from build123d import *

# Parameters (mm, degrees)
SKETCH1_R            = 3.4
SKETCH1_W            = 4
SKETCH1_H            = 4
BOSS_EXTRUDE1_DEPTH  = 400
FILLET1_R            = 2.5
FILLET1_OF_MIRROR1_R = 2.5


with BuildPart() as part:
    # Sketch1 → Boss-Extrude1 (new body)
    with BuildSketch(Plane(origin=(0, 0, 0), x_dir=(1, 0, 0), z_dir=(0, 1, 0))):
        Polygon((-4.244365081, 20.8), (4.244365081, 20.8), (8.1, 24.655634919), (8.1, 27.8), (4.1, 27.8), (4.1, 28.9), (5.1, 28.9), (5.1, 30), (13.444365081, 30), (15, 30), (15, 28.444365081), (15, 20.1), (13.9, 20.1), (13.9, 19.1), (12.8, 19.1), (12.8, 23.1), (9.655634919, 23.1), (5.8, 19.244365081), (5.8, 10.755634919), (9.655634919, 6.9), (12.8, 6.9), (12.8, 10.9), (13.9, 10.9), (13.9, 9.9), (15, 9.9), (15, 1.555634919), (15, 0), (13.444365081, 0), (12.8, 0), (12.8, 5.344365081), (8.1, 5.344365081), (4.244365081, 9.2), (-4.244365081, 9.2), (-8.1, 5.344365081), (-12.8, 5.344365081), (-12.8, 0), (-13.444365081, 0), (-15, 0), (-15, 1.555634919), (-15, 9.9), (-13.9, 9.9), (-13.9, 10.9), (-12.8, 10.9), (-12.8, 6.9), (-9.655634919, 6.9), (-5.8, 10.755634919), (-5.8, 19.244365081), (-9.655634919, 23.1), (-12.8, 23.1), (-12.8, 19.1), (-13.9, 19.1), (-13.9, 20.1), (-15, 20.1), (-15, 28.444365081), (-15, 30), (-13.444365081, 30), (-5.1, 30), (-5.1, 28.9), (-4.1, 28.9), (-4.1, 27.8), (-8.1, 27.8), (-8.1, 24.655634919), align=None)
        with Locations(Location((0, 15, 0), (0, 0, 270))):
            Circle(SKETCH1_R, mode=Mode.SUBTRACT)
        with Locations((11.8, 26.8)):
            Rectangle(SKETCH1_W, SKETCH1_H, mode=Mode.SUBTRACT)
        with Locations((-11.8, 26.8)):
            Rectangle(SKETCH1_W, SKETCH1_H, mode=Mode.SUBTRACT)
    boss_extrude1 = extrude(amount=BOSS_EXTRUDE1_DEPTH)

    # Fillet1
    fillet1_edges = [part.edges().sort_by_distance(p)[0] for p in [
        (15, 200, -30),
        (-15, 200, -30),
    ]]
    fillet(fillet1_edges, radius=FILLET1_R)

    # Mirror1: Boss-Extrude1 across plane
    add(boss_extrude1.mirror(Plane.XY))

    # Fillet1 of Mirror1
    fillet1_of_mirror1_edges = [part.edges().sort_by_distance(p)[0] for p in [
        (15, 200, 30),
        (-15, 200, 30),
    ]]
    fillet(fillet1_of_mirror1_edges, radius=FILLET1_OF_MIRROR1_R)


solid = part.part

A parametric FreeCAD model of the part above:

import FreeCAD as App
import Part
import Sketcher

V = App.Vector


def edges_at(feature, points):
    """Names of the edges that pass closest to the given points."""
    edges = feature.Shape.Edges
    near = lambda p: min(range(len(edges)), key=lambda i: edges[i].distToShape(Part.Vertex(*p))[0])
    return sorted({f"Edge{near(p) + 1}" for p in points})

doc = App.newDocument("Part")
params = doc.addObject("Spreadsheet::Sheet", "Params")
for row, (alias, value) in enumerate([
    ("sketch1_diameter", "6.8 mm"),
    ("sketch1_width", "4 mm"),
    ("sketch1_width2", "1 mm"),
    ("sketch1_width3", "9.9 mm"),
    ("sketch1_width4", "1.1 mm"),
    ("pad1_length", "400 mm"),
    ("fillet_radius", "2.5 mm"),
    ("fillet2_radius", "2.5 mm"),
], start=1):
    params.set(f"A{row}", alias)
    params.set(f"B{row}", "=" + value)
    params.setAlias(f"B{row}", alias)

body = doc.addObject("PartDesign::Body", "Body")

sketch1 = body.newObject("Sketcher::SketchObject", "Sketch")
sketch1.AttachmentSupport = (doc.getObject("XZ_Plane"), [""])
sketch1.MapMode = "FlatFace"
sketch1.addGeometry([
    Part.LineSegment(V(4.244365, -20.8, 0), V(-4.244365, -20.8, 0)),
    Part.LineSegment(V(-4.244365, -20.8, 0), V(-8.1, -24.655635, 0)),
    Part.LineSegment(V(-8.1, -24.655635, 0), V(-8.1, -27.8, 0)),
    Part.LineSegment(V(-8.1, -27.8, 0), V(-4.1, -27.8, 0)),
    Part.LineSegment(V(-4.1, -27.8, 0), V(-4.1, -28.9, 0)),
    Part.LineSegment(V(-4.1, -28.9, 0), V(-5.1, -28.9, 0)),
    Part.LineSegment(V(-5.1, -28.9, 0), V(-5.1, -30, 0)),
    Part.LineSegment(V(-5.1, -30, 0), V(-15, -30, 0)),
    Part.LineSegment(V(-15, -30, 0), V(-15, -20.1, 0)),
    Part.LineSegment(V(-15, -20.1, 0), V(-13.9, -20.1, 0)),
    Part.LineSegment(V(-13.9, -20.1, 0), V(-13.9, -19.1, 0)),
    Part.LineSegment(V(-13.9, -19.1, 0), V(-12.8, -19.1, 0)),
    Part.LineSegment(V(-12.8, -19.1, 0), V(-12.8, -23.1, 0)),
    Part.LineSegment(V(-12.8, -23.1, 0), V(-9.655635, -23.1, 0)),
    Part.LineSegment(V(-9.655635, -23.1, 0), V(-5.8, -19.244365, 0)),
    Part.LineSegment(V(-5.8, -19.244365, 0), V(-5.8, -10.755635, 0)),
    Part.LineSegment(V(-5.8, -10.755635, 0), V(-9.655635, -6.9, 0)),
    Part.LineSegment(V(-9.655635, -6.9, 0), V(-12.8, -6.9, 0)),
    Part.LineSegment(V(-12.8, -6.9, 0), V(-12.8, -10.9, 0)),
    Part.LineSegment(V(-12.8, -10.9, 0), V(-13.9, -10.9, 0)),
    Part.LineSegment(V(-13.9, -10.9, 0), V(-13.9, -9.9, 0)),
    Part.LineSegment(V(-13.9, -9.9, 0), V(-15, -9.9, 0)),
    Part.LineSegment(V(-15, -9.9, 0), V(-15, 0, 0)),
    Part.LineSegment(V(-15, 0, 0), V(-12.8, 0, 0)),
    Part.LineSegment(V(-12.8, 0, 0), V(-12.8, -5.344365, 0)),
    Part.LineSegment(V(-12.8, -5.344365, 0), V(-8.1, -5.344365, 0)),
    Part.LineSegment(V(-8.1, -5.344365, 0), V(-4.244365, -9.2, 0)),
    Part.LineSegment(V(-4.244365, -9.2, 0), V(4.244365, -9.2, 0)),
    Part.LineSegment(V(4.244365, -9.2, 0), V(8.1, -5.344365, 0)),
    Part.LineSegment(V(8.1, -5.344365, 0), V(12.8, -5.344365, 0)),
    Part.LineSegment(V(12.8, -5.344365, 0), V(12.8, 0, 0)),
    Part.LineSegment(V(12.8, 0, 0), V(15, 0, 0)),
    Part.LineSegment(V(15, 0, 0), V(15, -9.9, 0)),
    Part.LineSegment(V(15, -9.9, 0), V(13.9, -9.9, 0)),
    Part.LineSegment(V(13.9, -9.9, 0), V(13.9, -10.9, 0)),
    Part.LineSegment(V(13.9, -10.9, 0), V(12.8, -10.9, 0)),
    Part.LineSegment(V(12.8, -10.9, 0), V(12.8, -6.9, 0)),
    Part.LineSegment(V(12.8, -6.9, 0), V(9.655635, -6.9, 0)),
    Part.LineSegment(V(9.655635, -6.9, 0), V(5.8, -10.755635, 0)),
    Part.LineSegment(V(5.8, -10.755635, 0), V(5.8, -19.244365, 0)),
    Part.LineSegment(V(5.8, -19.244365, 0), V(9.655635, -23.1, 0)),
    Part.LineSegment(V(9.655635, -23.1, 0), V(12.8, -23.1, 0)),
    Part.LineSegment(V(12.8, -23.1, 0), V(12.8, -19.1, 0)),
    Part.LineSegment(V(12.8, -19.1, 0), V(13.9, -19.1, 0)),
    Part.LineSegment(V(13.9, -19.1, 0), V(13.9, -20.1, 0)),
    Part.LineSegment(V(13.9, -20.1, 0), V(15, -20.1, 0)),
    Part.LineSegment(V(15, -20.1, 0), V(15, -30, 0)),
    Part.LineSegment(V(15, -30, 0), V(5.1, -30, 0)),
    Part.LineSegment(V(5.1, -30, 0), V(5.1, -28.9, 0)),
    Part.LineSegment(V(5.1, -28.9, 0), V(4.1, -28.9, 0)),
    Part.LineSegment(V(4.1, -28.9, 0), V(4.1, -27.8, 0)),
    Part.LineSegment(V(4.1, -27.8, 0), V(8.1, -27.8, 0)),
    Part.LineSegment(V(8.1, -27.8, 0), V(8.1, -24.655635, 0)),
    Part.LineSegment(V(8.1, -24.655635, 0), V(4.244365, -20.8, 0)),
    Part.Circle(V(0, -15, 0), V(0, 0, 1), 3.4),
    Part.LineSegment(V(9.8, -24.8, 0), V(9.8, -28.8, 0)),
    Part.LineSegment(V(9.8, -28.8, 0), V(13.8, -28.8, 0)),
    Part.LineSegment(V(13.8, -28.8, 0), V(13.8, -24.8, 0)),
    Part.LineSegment(V(13.8, -24.8, 0), V(9.8, -24.8, 0)),
    Part.LineSegment(V(-13.8, -24.8, 0), V(-13.8, -28.8, 0)),
    Part.LineSegment(V(-13.8, -28.8, 0), V(-9.8, -28.8, 0)),
    Part.LineSegment(V(-9.8, -28.8, 0), V(-9.8, -24.8, 0)),
    Part.LineSegment(V(-9.8, -24.8, 0), V(-13.8, -24.8, 0)),
], False)
sketch1.addConstraint([
    Sketcher.Constraint("Coincident", 0, 2, 1, 1),
    Sketcher.Constraint("Coincident", 1, 2, 2, 1),
    Sketcher.Constraint("Coincident", 2, 2, 3, 1),
    Sketcher.Constraint("Coincident", 3, 2, 4, 1),
    Sketcher.Constraint("Coincident", 4, 2, 5, 1),
    Sketcher.Constraint("Coincident", 5, 2, 6, 1),
    Sketcher.Constraint("Coincident", 6, 2, 7, 1),
    Sketcher.Constraint("Coincident", 7, 2, 8, 1),
    Sketcher.Constraint("Coincident", 8, 2, 9, 1),
    Sketcher.Constraint("Coincident", 9, 2, 10, 1),
    Sketcher.Constraint("Coincident", 10, 2, 11, 1),
    Sketcher.Constraint("Coincident", 11, 2, 12, 1),
    Sketcher.Constraint("Coincident", 12, 2, 13, 1),
    Sketcher.Constraint("Coincident", 13, 2, 14, 1),
    Sketcher.Constraint("Coincident", 14, 2, 15, 1),
    Sketcher.Constraint("Coincident", 15, 2, 16, 1),
    Sketcher.Constraint("Coincident", 16, 2, 17, 1),
    Sketcher.Constraint("Coincident", 17, 2, 18, 1),
    Sketcher.Constraint("Coincident", 18, 2, 19, 1),
    Sketcher.Constraint("Coincident", 19, 2, 20, 1),
    Sketcher.Constraint("Coincident", 20, 2, 21, 1),
    Sketcher.Constraint("Coincident", 21, 2, 22, 1),
    Sketcher.Constraint("Coincident", 22, 2, 23, 1),
    Sketcher.Constraint("Coincident", 23, 2, 24, 1),
    Sketcher.Constraint("Coincident", 24, 2, 25, 1),
    Sketcher.Constraint("Coincident", 25, 2, 26, 1),
    Sketcher.Constraint("Coincident", 26, 2, 27, 1),
    Sketcher.Constraint("Coincident", 27, 2, 28, 1),
    Sketcher.Constraint("Coincident", 28, 2, 29, 1),
    Sketcher.Constraint("Coincident", 29, 2, 30, 1),
    Sketcher.Constraint("Coincident", 30, 2, 31, 1),
    Sketcher.Constraint("Coincident", 31, 2, 32, 1),
    Sketcher.Constraint("Coincident", 32, 2, 33, 1),
    Sketcher.Constraint("Coincident", 33, 2, 34, 1),
    Sketcher.Constraint("Coincident", 34, 2, 35, 1),
    Sketcher.Constraint("Coincident", 35, 2, 36, 1),
    Sketcher.Constraint("Coincident", 36, 2, 37, 1),
    Sketcher.Constraint("Coincident", 37, 2, 38, 1),
    Sketcher.Constraint("Coincident", 38, 2, 39, 1),
    Sketcher.Constraint("Coincident", 39, 2, 40, 1),
    Sketcher.Constraint("Coincident", 40, 2, 41, 1),
    Sketcher.Constraint("Coincident", 41, 2, 42, 1),
    Sketcher.Constraint("Coincident", 42, 2, 43, 1),
    Sketcher.Constraint("Coincident", 43, 2, 44, 1),
    Sketcher.Constraint("Coincident", 44, 2, 45, 1),
    Sketcher.Constraint("Coincident", 45, 2, 46, 1),
    Sketcher.Constraint("Coincident", 46, 2, 47, 1),
    Sketcher.Constraint("Coincident", 47, 2, 48, 1),
    Sketcher.Constraint("Coincident", 48, 2, 49, 1),
    Sketcher.Constraint("Coincident", 49, 2, 50, 1),
    Sketcher.Constraint("Coincident", 50, 2, 51, 1),
    Sketcher.Constraint("Coincident", 51, 2, 52, 1),
    Sketcher.Constraint("Coincident", 52, 2, 53, 1),
    Sketcher.Constraint("Coincident", 53, 2, 0, 1),
    Sketcher.Constraint("Coincident", 55, 2, 56, 1),
    Sketcher.Constraint("Coincident", 56, 2, 57, 1),
    Sketcher.Constraint("Coincident", 57, 2, 58, 1),
    Sketcher.Constraint("Coincident", 58, 2, 55, 1),
    Sketcher.Constraint("Coincident", 59, 2, 60, 1),
    Sketcher.Constraint("Coincident", 60, 2, 61, 1),
    Sketcher.Constraint("Coincident", 61, 2, 62, 1),
    Sketcher.Constraint("Coincident", 62, 2, 59, 1),
    Sketcher.Constraint("Horizontal", 0),
    Sketcher.Constraint("Vertical", 2),
    Sketcher.Constraint("Horizontal", 3),
    Sketcher.Constraint("Vertical", 4),
    Sketcher.Constraint("Horizontal", 5),
    Sketcher.Constraint("Vertical", 6),
    Sketcher.Constraint("Horizontal", 7),
    Sketcher.Constraint("Vertical", 8),
    Sketcher.Constraint("Horizontal", 9),
    Sketcher.Constraint("Vertical", 10),
    Sketcher.Constraint("Horizontal", 11),
    Sketcher.Constraint("Vertical", 12),
    Sketcher.Constraint("Horizontal", 13),
    Sketcher.Constraint("Vertical", 15),
    Sketcher.Constraint("Horizontal", 17),
    Sketcher.Constraint("Vertical", 18),
    Sketcher.Constraint("Horizontal", 19),
    Sketcher.Constraint("Vertical", 20),
    Sketcher.Constraint("Horizontal", 21),
    Sketcher.Constraint("Vertical", 22),
    Sketcher.Constraint("Horizontal", 23),
    Sketcher.Constraint("Vertical", 24),
    Sketcher.Constraint("Horizontal", 25),
    Sketcher.Constraint("Horizontal", 27),
    Sketcher.Constraint("Horizontal", 29),
    Sketcher.Constraint("Vertical", 30),
    Sketcher.Constraint("Horizontal", 31),
    Sketcher.Constraint("Vertical", 32),
    Sketcher.Constraint("Horizontal", 33),
    Sketcher.Constraint("Vertical", 34),
    Sketcher.Constraint("Horizontal", 35),
    Sketcher.Constraint("Vertical", 36),
    Sketcher.Constraint("Horizontal", 37),
    Sketcher.Constraint("Vertical", 39),
    Sketcher.Constraint("Horizontal", 41),
    Sketcher.Constraint("Vertical", 42),
    Sketcher.Constraint("Horizontal", 43),
    Sketcher.Constraint("Vertical", 44),
    Sketcher.Constraint("Horizontal", 45),
    Sketcher.Constraint("Vertical", 46),
    Sketcher.Constraint("Horizontal", 47),
    Sketcher.Constraint("Vertical", 48),
    Sketcher.Constraint("Horizontal", 49),
    Sketcher.Constraint("Vertical", 50),
    Sketcher.Constraint("Horizontal", 51),
    Sketcher.Constraint("Vertical", 52),
    Sketcher.Constraint("Vertical", 55),
    Sketcher.Constraint("Horizontal", 56),
    Sketcher.Constraint("Vertical", 57),
    Sketcher.Constraint("Horizontal", 58),
    Sketcher.Constraint("Vertical", 59),
    Sketcher.Constraint("Horizontal", 60),
    Sketcher.Constraint("Vertical", 61),
    Sketcher.Constraint("Horizontal", 62),
    Sketcher.Constraint("Symmetric", 23, 2, 30, 2, -1, 1),
    Sketcher.Constraint("Symmetric", 25, 2, 28, 2, -2),
    Sketcher.Constraint("Symmetric", 22, 2, 31, 2, -2),
    Sketcher.Constraint("Symmetric", 20, 2, 33, 2, -2),
    Sketcher.Constraint("Symmetric", 18, 2, 35, 2, -2),
    Sketcher.Constraint("Symmetric", 16, 2, 37, 2, -2),
    Sketcher.Constraint("Symmetric", 15, 2, 38, 2, -2),
    Sketcher.Constraint("Symmetric", 13, 2, 40, 2, -2),
    Sketcher.Constraint("Symmetric", 11, 2, 42, 2, -2),
    Sketcher.Constraint("Symmetric", 9, 2, 44, 2, -2),
    Sketcher.Constraint("Symmetric", 7, 2, 46, 2, -2),
    Sketcher.Constraint("Symmetric", 5, 2, 48, 2, -2),
    Sketcher.Constraint("Symmetric", 3, 2, 50, 2, -2),
    Sketcher.Constraint("Symmetric", 1, 2, 52, 2, -2),
    Sketcher.Constraint("Symmetric", 56, 2, 59, 2, -2),
    Sketcher.Constraint("Symmetric", 58, 2, 61, 2, -2),
    Sketcher.Constraint("PointOnObject", 54, 3, -2),
    Sketcher.Constraint("Parallel", 1, 14),
    Sketcher.Constraint("Perpendicular", 14, 16),
    Sketcher.Constraint("Parallel", 16, 26),
    Sketcher.Constraint("Perpendicular", 26, 28),
    Sketcher.Constraint("Parallel", 28, 38),
    Sketcher.Constraint("Perpendicular", 38, 40),
    Sketcher.Constraint("Parallel", 40, 53),
    Sketcher.Constraint("Vertical", 13, 2, 16, 2),
    Sketcher.Constraint("Vertical", 12, 2, 17, 2),
    Sketcher.Constraint("Vertical", 10, 2, 19, 2),
    Sketcher.Constraint("Vertical", 8, 2, 21, 2),
    Sketcher.Constraint("Vertical", 18, 2, 23, 2),
    Sketcher.Constraint("Vertical", 2, 2, 25, 2),
    Sketcher.Constraint("Vertical", 0, 2, 26, 2),
    Sketcher.Constraint("Equal", 9, 11),
    Sketcher.Constraint("Equal", 51, 56),
    Sketcher.Constraint("Equal", 41, 2),
    Sketcher.Constraint("Equal", 45, 4),
    Sketcher.Constraint("Equal", 4, 6),
    Sketcher.Constraint("Equal", 47, 8),
    Sketcher.Constraint("Equal", 49, 10),
    Sketcher.Constraint("Equal", 62, 12),
    Sketcher.Constraint("Equal", 27, 15),
    Sketcher.Constraint("Equal", 12, 18),
    Sketcher.Constraint("Equal", 10, 20),
    Sketcher.Constraint("Equal", 8, 22),
    Sketcher.Constraint("Equal", 42, 55),
    Sketcher.Constraint("Equal", 1, 14),
    Sketcher.Constraint("Diameter", 54, 6.8),
    Sketcher.Constraint("DistanceX", 3, 1, 3, 2, 4.0),
    Sketcher.Constraint("DistanceX", 5, 2, 5, 1, 1.0),
    Sketcher.Constraint("DistanceX", 7, 2, 7, 1, 9.9),
    Sketcher.Constraint("DistanceX", 9, 1, 9, 2, 1.1),
    Sketcher.Constraint("DistanceY", 54, 3, -1, 1, 15.0),
    Sketcher.Constraint("DistanceY", 6, 2, -1, 1, 30.0),
    Sketcher.Constraint("DistanceY", 0, 2, -1, 1, 20.8),
    Sketcher.Constraint("DistanceY", 26, 2, -1, 1, 9.2),
    Sketcher.Constraint("DistanceX", -1, 1, 55, 2, 9.8),
    Sketcher.Constraint("DistanceY", 55, 2, -1, 1, 28.8),
    Sketcher.Constraint("DistanceX", 0, 2, 0, 1, 8.48873),
])
sketch1.setExpression("Constraints[161]", "Params.sketch1_diameter")
sketch1.setExpression("Constraints[162]", "Params.sketch1_width")
sketch1.setExpression("Constraints[163]", "Params.sketch1_width2")
sketch1.setExpression("Constraints[164]", "Params.sketch1_width3")
sketch1.setExpression("Constraints[165]", "Params.sketch1_width4")
pad1 = body.newObject("PartDesign::Pad", "Pad")
pad1.Profile = sketch1
pad1.setExpression("Length", "Params.pad1_length")
pad1.Reversed = True
doc.recompute()

fillet = body.newObject("PartDesign::Fillet", "Fillet")
fillet.Base = (pad1, edges_at(pad1, [(15, 200, -30), (-15, 200, -30)]))
fillet.setExpression("Radius", "Params.fillet_radius")
doc.recompute()

mirrored = body.newObject("PartDesign::Mirrored", "Mirrored")
mirrored.Originals = [pad1]
mirrored.MirrorPlane = (doc.getObject("XY_Plane"), [""])
body.Tip = mirrored
doc.recompute()

fillet2 = body.newObject("PartDesign::Fillet", "Fillet001")
fillet2.Base = (mirrored, edges_at(mirrored, [(15, 200, 30), (-15, 200, 30)]))
fillet2.setExpression("Radius", "Params.fillet2_radius")

doc.recompute()
